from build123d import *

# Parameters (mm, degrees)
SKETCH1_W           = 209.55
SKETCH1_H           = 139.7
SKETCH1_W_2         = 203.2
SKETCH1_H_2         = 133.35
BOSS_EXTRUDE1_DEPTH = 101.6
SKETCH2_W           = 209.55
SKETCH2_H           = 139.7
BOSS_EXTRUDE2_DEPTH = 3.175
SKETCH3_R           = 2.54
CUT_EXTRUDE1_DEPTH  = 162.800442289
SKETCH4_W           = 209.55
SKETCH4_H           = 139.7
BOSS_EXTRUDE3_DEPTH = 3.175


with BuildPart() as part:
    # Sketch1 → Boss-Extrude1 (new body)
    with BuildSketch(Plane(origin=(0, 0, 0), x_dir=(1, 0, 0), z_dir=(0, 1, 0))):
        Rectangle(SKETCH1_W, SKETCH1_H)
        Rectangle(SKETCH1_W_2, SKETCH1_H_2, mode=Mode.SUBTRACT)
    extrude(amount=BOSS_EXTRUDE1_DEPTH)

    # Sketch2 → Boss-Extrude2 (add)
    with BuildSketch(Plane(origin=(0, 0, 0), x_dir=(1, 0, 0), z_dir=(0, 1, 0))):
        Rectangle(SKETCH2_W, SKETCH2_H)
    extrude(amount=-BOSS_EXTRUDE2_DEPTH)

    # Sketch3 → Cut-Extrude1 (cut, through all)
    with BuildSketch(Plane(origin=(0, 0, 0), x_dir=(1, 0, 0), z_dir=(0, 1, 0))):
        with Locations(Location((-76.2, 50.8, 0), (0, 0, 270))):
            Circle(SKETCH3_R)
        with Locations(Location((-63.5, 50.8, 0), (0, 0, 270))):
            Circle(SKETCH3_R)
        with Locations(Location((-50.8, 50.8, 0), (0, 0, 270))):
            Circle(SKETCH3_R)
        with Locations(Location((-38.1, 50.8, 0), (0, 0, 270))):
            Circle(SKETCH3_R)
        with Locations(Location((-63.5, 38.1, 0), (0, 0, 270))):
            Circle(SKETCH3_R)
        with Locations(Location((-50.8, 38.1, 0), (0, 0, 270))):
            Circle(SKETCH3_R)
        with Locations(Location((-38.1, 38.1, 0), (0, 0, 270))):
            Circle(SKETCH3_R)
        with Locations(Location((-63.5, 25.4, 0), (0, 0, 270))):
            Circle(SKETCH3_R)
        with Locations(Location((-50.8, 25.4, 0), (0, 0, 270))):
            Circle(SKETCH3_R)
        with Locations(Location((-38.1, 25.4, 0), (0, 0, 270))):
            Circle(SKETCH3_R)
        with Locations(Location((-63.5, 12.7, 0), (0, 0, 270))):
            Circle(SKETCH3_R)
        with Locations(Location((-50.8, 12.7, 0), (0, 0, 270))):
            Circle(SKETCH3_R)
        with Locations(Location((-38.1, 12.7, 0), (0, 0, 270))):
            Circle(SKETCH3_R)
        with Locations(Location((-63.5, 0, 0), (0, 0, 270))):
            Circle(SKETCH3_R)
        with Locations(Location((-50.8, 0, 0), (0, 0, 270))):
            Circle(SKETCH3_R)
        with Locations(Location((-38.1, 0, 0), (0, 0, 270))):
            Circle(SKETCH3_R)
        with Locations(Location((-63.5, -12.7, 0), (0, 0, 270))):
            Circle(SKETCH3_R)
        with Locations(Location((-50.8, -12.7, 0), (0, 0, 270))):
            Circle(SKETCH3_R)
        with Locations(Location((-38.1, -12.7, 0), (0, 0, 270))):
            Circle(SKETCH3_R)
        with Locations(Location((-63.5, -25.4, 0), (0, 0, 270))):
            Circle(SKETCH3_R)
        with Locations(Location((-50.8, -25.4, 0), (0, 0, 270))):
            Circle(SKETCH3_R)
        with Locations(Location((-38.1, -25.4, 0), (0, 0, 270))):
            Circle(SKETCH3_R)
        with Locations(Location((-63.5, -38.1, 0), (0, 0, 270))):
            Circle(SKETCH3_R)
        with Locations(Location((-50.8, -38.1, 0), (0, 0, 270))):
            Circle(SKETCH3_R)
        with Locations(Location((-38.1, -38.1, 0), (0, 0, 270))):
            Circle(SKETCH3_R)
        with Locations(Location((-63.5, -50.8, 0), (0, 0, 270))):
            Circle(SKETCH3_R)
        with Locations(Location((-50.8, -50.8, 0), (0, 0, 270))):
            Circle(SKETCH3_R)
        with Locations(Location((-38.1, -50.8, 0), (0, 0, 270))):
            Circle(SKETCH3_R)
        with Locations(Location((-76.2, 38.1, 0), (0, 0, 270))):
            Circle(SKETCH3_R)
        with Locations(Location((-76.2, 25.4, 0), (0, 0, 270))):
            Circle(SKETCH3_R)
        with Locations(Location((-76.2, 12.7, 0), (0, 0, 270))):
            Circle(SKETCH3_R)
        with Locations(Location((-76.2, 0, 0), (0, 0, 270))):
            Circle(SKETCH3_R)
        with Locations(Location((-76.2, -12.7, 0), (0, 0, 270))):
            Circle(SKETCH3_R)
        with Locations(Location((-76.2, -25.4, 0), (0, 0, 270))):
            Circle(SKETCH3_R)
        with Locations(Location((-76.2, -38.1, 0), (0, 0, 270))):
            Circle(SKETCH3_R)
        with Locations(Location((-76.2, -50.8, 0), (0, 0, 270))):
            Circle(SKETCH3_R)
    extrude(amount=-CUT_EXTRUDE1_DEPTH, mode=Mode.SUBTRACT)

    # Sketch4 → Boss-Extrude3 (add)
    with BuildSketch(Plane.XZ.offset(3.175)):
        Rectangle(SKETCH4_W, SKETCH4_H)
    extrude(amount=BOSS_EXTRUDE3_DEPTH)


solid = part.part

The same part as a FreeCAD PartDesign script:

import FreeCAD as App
import Part
import Sketcher
Q = App.Units.Quantity

doc = App.newDocument("Part")
body = doc.addObject("PartDesign::Body", "Body")

# Sketch on XZ plane
sketch1 = body.newObject("Sketcher::SketchObject", "Sketch")
sketch1.AttachmentSupport = (doc.getObject("XZ_Plane"), [""])
sketch1.MapMode = "FlatFace"
sketch1.addGeometry([
    Part.LineSegment(App.Vector(-105, -70, 0), App.Vector(-105, 70, 0)),  # 0
    Part.LineSegment(App.Vector(-105, 70, 0), App.Vector(105, 70, 0)),  # 1
    Part.LineSegment(App.Vector(105, 70, 0), App.Vector(105, -70, 0)),  # 2
    Part.LineSegment(App.Vector(105, -70, 0), App.Vector(-105, -70, 0)),  # 3
    Part.LineSegment(App.Vector(102, 67, 0), App.Vector(-102, 67, 0)),  # 4
    Part.LineSegment(App.Vector(-102, 67, 0), App.Vector(-102, -67, 0)),  # 5
    Part.LineSegment(App.Vector(-102, -67, 0), App.Vector(102, -67, 0)),  # 6
    Part.LineSegment(App.Vector(102, -67, 0), App.Vector(102, 67, 0)),  # 7
], False)
sketch1.addConstraint([
    Sketcher.Constraint("Coincident", 0, 2, 1, 1),
    Sketcher.Constraint("Coincident", 1, 2, 2, 1),
    Sketcher.Constraint("Coincident", 2, 2, 3, 1),
    Sketcher.Constraint("Coincident", 3, 2, 0, 1),
    Sketcher.Constraint("Coincident", 4, 2, 5, 1),
    Sketcher.Constraint("Coincident", 5, 2, 6, 1),
    Sketcher.Constraint("Coincident", 6, 2, 7, 1),
    Sketcher.Constraint("Coincident", 7, 2, 4, 1),
    Sketcher.Constraint("Vertical", 0),
    Sketcher.Constraint("Horizontal", 1),
    Sketcher.Constraint("Vertical", 2),
    Sketcher.Constraint("Horizontal", 3),
    Sketcher.Constraint("Horizontal", 4),
    Sketcher.Constraint("Vertical", 5),
    Sketcher.Constraint("Horizontal", 6),
    Sketcher.Constraint("Vertical", 7),
    Sketcher.Constraint("Symmetric", 0, 2, 2, 2, -1, 1),
    Sketcher.Constraint("Symmetric", 4, 2, 6, 2, -1, 1),
    Sketcher.Constraint("DistanceX", 4, 2, 4, 1, Q("8 in")),
    Sketcher.Constraint("DistanceY", 0, 1, 0, 2, Q("5.5 in")),
    Sketcher.Constraint("DistanceX", 1, 1, 1, 2, Q("8.25 in")),
    Sketcher.Constraint("DistanceY", 5, 2, 5, 1, Q("5.25 in")),
])
pad1 = body.newObject("PartDesign::Pad", "Pad")
pad1.Profile = sketch1
pad1.Length = Q("4 in")
pad1.Reversed = True

# Sketch on XZ plane
sketch2 = body.newObject("Sketcher::SketchObject", "Sketch001")
sketch2.AttachmentSupport = (doc.getObject("XZ_Plane"), [""])
sketch2.MapMode = "FlatFace"
sketch2.addGeometry([
    Part.LineSegment(App.Vector(-105, -70, 0), App.Vector(-105, 70, 0)),
    Part.LineSegment(App.Vector(-105, 70, 0), App.Vector(105, 70, 0)),
    Part.LineSegment(App.Vector(105, 70, 0), App.Vector(105, -70, 0)),
    Part.LineSegment(App.Vector(105, -70, 0), App.Vector(-105, -70, 0)),
], False)
sketch2.addConstraint([
    Sketcher.Constraint("Coincident", 0, 2, 1, 1),
    Sketcher.Constraint("Coincident", 1, 2, 2, 1),
    Sketcher.Constraint("Coincident", 2, 2, 3, 1),
    Sketcher.Constraint("Coincident", 3, 2, 0, 1),
    Sketcher.Constraint("Vertical", 0),
    Sketcher.Constraint("Horizontal", 1),
    Sketcher.Constraint("Vertical", 2),
    Sketcher.Constraint("Horizontal", 3),
    Sketcher.Constraint("Symmetric", 0, 2, 2, 2, -1, 1),
    Sketcher.Constraint("DistanceY", 0, 1, 0, 2, Q("5.5 in")),
    Sketcher.Constraint("DistanceX", 1, 1, 1, 2, Q("8.25 in")),
])
pad2 = body.newObject("PartDesign::Pad", "Pad001")
pad2.Profile = sketch2
pad2.Length = Q("0.125 in")

# Sketch on XZ plane
sketch3 = body.newObject("Sketcher::SketchObject", "Sketch002")
sketch3.AttachmentSupport = (doc.getObject("XZ_Plane"), [""])
sketch3.MapMode = "FlatFace"
sketch3.addGeometry([
    Part.Circle(App.Vector(-76.2, -50.8, 0), App.Vector(0, 0, 1), 2.5),  # 0
    Part.Circle(App.Vector(-63.5, -50.8, 0), App.Vector(0, 0, 1), 2.5),  # 1
    Part.Circle(App.Vector(-50.8, -50.8, 0), App.Vector(0, 0, 1), 2.5),  # 2
    Part.Circle(App.Vector(-38.1, -50.8, 0), App.Vector(0, 0, 1), 2.5),  # 3
    Part.Circle(App.Vector(-63.5, -38.1, 0), App.Vector(0, 0, 1), 2.5),  # 4
    Part.Circle(App.Vector(-50.8, -38.1, 0), App.Vector(0, 0, 1), 2.5),  # 5
    Part.Circle(App.Vector(-38.1, -38.1, 0), App.Vector(0, 0, 1), 2.5),  # 6
    Part.Circle(App.Vector(-63.5, -25.4, 0), App.Vector(0, 0, 1), 2.5),  # 7
    Part.Circle(App.Vector(-50.8, -25.4, 0), App.Vector(0, 0, 1), 2.5),  # 8
    Part.Circle(App.Vector(-38.1, -25.4, 0), App.Vector(0, 0, 1), 2.5),  # 9
    Part.Circle(App.Vector(-63.5, -12.7, 0), App.Vector(0, 0, 1), 2.5),  # 10
    Part.Circle(App.Vector(-50.8, -12.7, 0), App.Vector(0, 0, 1), 2.5),  # 11
    Part.Circle(App.Vector(-38.1, -12.7, 0), App.Vector(0, 0, 1), 2.5),  # 12
    Part.Circle(App.Vector(-63.5, 0, 0), App.Vector(0, 0, 1), 2.5),  # 13
    Part.Circle(App.Vector(-50.8, 0, 0), App.Vector(0, 0, 1), 2.5),  # 14
    Part.Circle(App.Vector(-38.1, 0, 0), App.Vector(0, 0, 1), 2.5),  # 15
    Part.Circle(App.Vector(-63.5, 12.7, 0), App.Vector(0, 0, 1), 2.5),  # 16
    Part.Circle(App.Vector(-50.8, 12.7, 0), App.Vector(0, 0, 1), 2.5),  # 17
    Part.Circle(App.Vector(-38.1, 12.7, 0), App.Vector(0, 0, 1), 2.5),  # 18
    Part.Circle(App.Vector(-63.5, 25.4, 0), App.Vector(0, 0, 1), 2.5),  # 19
    Part.Circle(App.Vector(-50.8, 25.4, 0), App.Vector(0, 0, 1), 2.5),  # 20
    Part.Circle(App.Vector(-38.1, 25.4, 0), App.Vector(0, 0, 1), 2.5),  # 21
    Part.Circle(App.Vector(-63.5, 38.1, 0), App.Vector(0, 0, 1), 2.5),  # 22
    Part.Circle(App.Vector(-50.8, 38.1, 0), App.Vector(0, 0, 1), 2.5),  # 23
    Part.Circle(App.Vector(-38.1, 38.1, 0), App.Vector(0, 0, 1), 2.5),  # 24
    Part.Circle(App.Vector(-63.5, 50.8, 0), App.Vector(0, 0, 1), 2.5),  # 25
    Part.Circle(App.Vector(-50.8, 50.8, 0), App.Vector(0, 0, 1), 2.5),  # 26
    Part.Circle(App.Vector(-38.1, 50.8, 0), App.Vector(0, 0, 1), 2.5),  # 27
    Part.Circle(App.Vector(-76.2, -38.1, 0), App.Vector(0, 0, 1), 2.5),  # 28
    Part.Circle(App.Vector(-76.2, -25.4, 0), App.Vector(0, 0, 1), 2.5),  # 29
    Part.Circle(App.Vector(-76.2, -12.7, 0), App.Vector(0, 0, 1), 2.5),  # 30
    Part.Circle(App.Vector(-76.2, 0, 0), App.Vector(0, 0, 1), 2.5),  # 31
    Part.Circle(App.Vector(-76.2, 12.7, 0), App.Vector(0, 0, 1), 2.5),  # 32
    Part.Circle(App.Vector(-76.2, 25.4, 0), App.Vector(0, 0, 1), 2.5),  # 33
    Part.Circle(App.Vector(-76.2, 38.1, 0), App.Vector(0, 0, 1), 2.5),  # 34
    Part.Circle(App.Vector(-76.2, 50.8, 0), App.Vector(0, 0, 1), 2.5),  # 35
], False)
sketch3.addConstraint([
    Sketcher.Constraint("Equal", 0, 1),
    Sketcher.Constraint("Equal", 1, 2),
    Sketcher.Constraint("Equal", 2, 3),
    Sketcher.Constraint("Equal", 3, 4),
    Sketcher.Constraint("Equal", 4, 5),
    Sketcher.Constraint("Equal", 5, 6),
    Sketcher.Constraint("Equal", 6, 7),
    Sketcher.Constraint("Equal", 7, 8),
    Sketcher.Constraint("Equal", 8, 9),
    Sketcher.Constraint("Equal", 9, 10),
    Sketcher.Constraint("Equal", 10, 11),
    Sketcher.Constraint("Equal", 11, 12),
    Sketcher.Constraint("Equal", 12, 13),
    Sketcher.Constraint("Equal", 13, 14),
    Sketcher.Constraint("Equal", 14, 15),
    Sketcher.Constraint("Equal", 15, 16),
    Sketcher.Constraint("Equal", 16, 17),
    Sketcher.Constraint("Equal", 17, 18),
    Sketcher.Constraint("Equal", 18, 19),
    Sketcher.Constraint("Equal", 19, 20),
    Sketcher.Constraint("Equal", 20, 21),
    Sketcher.Constraint("Equal", 21, 22),
    Sketcher.Constraint("Equal", 22, 23),
    Sketcher.Constraint("Equal", 23, 24),
    Sketcher.Constraint("Equal", 24, 25),
    Sketcher.Constraint("Equal", 25, 26),
    Sketcher.Constraint("Equal", 26, 27),
    Sketcher.Constraint("Equal", 27, 28),
    Sketcher.Constraint("Equal", 28, 29),
    Sketcher.Constraint("Equal", 29, 30),
    Sketcher.Constraint("Equal", 30, 31),
    Sketcher.Constraint("Equal", 31, 32),
    Sketcher.Constraint("Equal", 32, 33),
    Sketcher.Constraint("Equal", 33, 34),
    Sketcher.Constraint("Equal", 34, 35),
    Sketcher.Constraint("Symmetric", 10, 3, 16, 3, -1),
    Sketcher.Constraint("Symmetric", 11, 3, 17, 3, -1),
    Sketcher.Constraint("Symmetric", 12, 3, 18, 3, -1),
    Sketcher.Constraint("Symmetric", 7, 3, 19, 3, -1),
    Sketcher.Constraint("Symmetric", 8, 3, 20, 3, -1),
    Sketcher.Constraint("Symmetric", 9, 3, 21, 3, -1),
    Sketcher.Constraint("Symmetric", 4, 3, 22, 3, -1),
    Sketcher.Constraint("Symmetric", 5, 3, 23, 3, -1),
    Sketcher.Constraint("Symmetric", 6, 3, 24, 3, -1),
    Sketcher.Constraint("Symmetric", 1, 3, 25, 3, -1),
    Sketcher.Constraint("Symmetric", 2, 3, 26, 3, -1),
    Sketcher.Constraint("Symmetric", 3, 3, 27, 3, -1),
    Sketcher.Constraint("Symmetric", 30, 3, 32, 3, -1),
    Sketcher.Constraint("Symmetric", 29, 3, 33, 3, -1),
    Sketcher.Constraint("Symmetric", 28, 3, 34, 3, -1),
    Sketcher.Constraint("Symmetric", 0, 3, 35, 3, -1),
    Sketcher.Constraint("PointOnObject", 13, 3, -1),
    Sketcher.Constraint("PointOnObject", 14, 3, -1),
    Sketcher.Constraint("PointOnObject", 15, 3, -1),
    Sketcher.Constraint("PointOnObject", 31, 3, -1),
    Sketcher.Constraint("Horizontal", 0, 3, 1, 3),
    Sketcher.Constraint("Horizontal", 1, 3, 2, 3),
    Sketcher.Constraint("Horizontal", 2, 3, 3, 3),
    Sketcher.Constraint("Horizontal", 4, 3, 5, 3),
    Sketcher.Constraint("Horizontal", 5, 3, 6, 3),
    Sketcher.Constraint("Horizontal", 7, 3, 8, 3),
    Sketcher.Constraint("Horizontal", 8, 3, 9, 3),
    Sketcher.Constraint("Horizontal", 10, 3, 11, 3),
    Sketcher.Constraint("Horizontal", 11, 3, 12, 3),
    Sketcher.Constraint("Horizontal", 6, 3, 28, 3),
    Sketcher.Constraint("Horizontal", 9, 3, 29, 3),
    Sketcher.Constraint("Horizontal", 12, 3, 30, 3),
    Sketcher.Constraint("Vertical", 1, 3, 4, 3),
    Sketcher.Constraint("Vertical", 2, 3, 5, 3),
    Sketcher.Constraint("Vertical", 3, 3, 6, 3),
    Sketcher.Constraint("Vertical", 4, 3, 7, 3),
    Sketcher.Constraint("Vertical", 5, 3, 8, 3),
    Sketcher.Constraint("Vertical", 6, 3, 9, 3),
    Sketcher.Constraint("Vertical", 7, 3, 10, 3),
    Sketcher.Constraint("Vertical", 8, 3, 11, 3),
    Sketcher.Constraint("Vertical", 9, 3, 12, 3),
    Sketcher.Constraint("Vertical", 10, 3, 13, 3),
    Sketcher.Constraint("Vertical", 11, 3, 14, 3),
    Sketcher.Constraint("Vertical", 12, 3, 15, 3),
    Sketcher.Constraint("Vertical", 0, 3, 28, 3),
    Sketcher.Constraint("Vertical", 28, 3, 29, 3),
    Sketcher.Constraint("Vertical", 29, 3, 30, 3),
    Sketcher.Constraint("Vertical", 30, 3, 31, 3),
    Sketcher.Constraint("Diameter", 0, Q("0.2 in")),
    Sketcher.Constraint("DistanceX", 0, 3, -1, 1, Q("3 in")),
    Sketcher.Constraint("DistanceY", 0, 3, -1, 1, Q("2 in")),
    Sketcher.Constraint("DistanceX", 2, 3, -1, 1, Q("2 in")),
    Sketcher.Constraint("DistanceY", 7, 3, -1, 1, Q("1 in")),
    Sketcher.Constraint("DistanceX", 1, 3, 3, 3, Q("1 in")),
    Sketcher.Constraint("DistanceY", 4, 3, 10, 3, Q("1 in")),
    Sketcher.Constraint("DistanceY", 10, 3, 16, 3, Q("1 in")),
    Sketcher.Constraint("DistanceX", 1, 3, -1, 1, Q("2.5 in")),
])
pocket1 = body.newObject("PartDesign::Pocket", "Pocket")
pocket1.Profile = sketch3
pocket1.Type = "ThroughAll"
pocket1.Reversed = True

# Sketch on XZ plane
sketch4 = body.newObject("Sketcher::SketchObject", "Sketch003")
sketch4.AttachmentSupport = (doc.getObject("XZ_Plane"), [""])
sketch4.MapMode = "FlatFace"
sketch4.AttachmentOffset = App.Placement(App.Vector(0, 0, 0.125 * 25.4), App.Rotation())
sketch4.addGeometry([
    Part.LineSegment(App.Vector(-105, 70, 0), App.Vector(-105, -70, 0)),
    Part.LineSegment(App.Vector(-105, -70, 0), App.Vector(105, -70, 0)),
    Part.LineSegment(App.Vector(105, -70, 0), App.Vector(105, 70, 0)),
    Part.LineSegment(App.Vector(105, 70, 0), App.Vector(-105, 70, 0)),
], False)
sketch4.addConstraint([
    Sketcher.Constraint("Coincident", 0, 2, 1, 1),
    Sketcher.Constraint("Coincident", 1, 2, 2, 1),
    Sketcher.Constraint("Coincident", 2, 2, 3, 1),
    Sketcher.Constraint("Coincident", 3, 2, 0, 1),
    Sketcher.Constraint("Vertical", 0),
    Sketcher.Constraint("Horizontal", 1),
    Sketcher.Constraint("Vertical", 2),
    Sketcher.Constraint("Horizontal", 3),
    Sketcher.Constraint("Symmetric", 0, 2, 2, 2, -1, 1),
    Sketcher.Constraint("DistanceY", 0, 2, 0, 1, Q("5.5 in")),
    Sketcher.Constraint("DistanceX", 1, 1, 1, 2, Q("8.25 in")),
])
pad3 = body.newObject("PartDesign::Pad", "Pad002")
pad3.Profile = sketch4
pad3.Length = Q("0.125 in")

doc.recompute()
